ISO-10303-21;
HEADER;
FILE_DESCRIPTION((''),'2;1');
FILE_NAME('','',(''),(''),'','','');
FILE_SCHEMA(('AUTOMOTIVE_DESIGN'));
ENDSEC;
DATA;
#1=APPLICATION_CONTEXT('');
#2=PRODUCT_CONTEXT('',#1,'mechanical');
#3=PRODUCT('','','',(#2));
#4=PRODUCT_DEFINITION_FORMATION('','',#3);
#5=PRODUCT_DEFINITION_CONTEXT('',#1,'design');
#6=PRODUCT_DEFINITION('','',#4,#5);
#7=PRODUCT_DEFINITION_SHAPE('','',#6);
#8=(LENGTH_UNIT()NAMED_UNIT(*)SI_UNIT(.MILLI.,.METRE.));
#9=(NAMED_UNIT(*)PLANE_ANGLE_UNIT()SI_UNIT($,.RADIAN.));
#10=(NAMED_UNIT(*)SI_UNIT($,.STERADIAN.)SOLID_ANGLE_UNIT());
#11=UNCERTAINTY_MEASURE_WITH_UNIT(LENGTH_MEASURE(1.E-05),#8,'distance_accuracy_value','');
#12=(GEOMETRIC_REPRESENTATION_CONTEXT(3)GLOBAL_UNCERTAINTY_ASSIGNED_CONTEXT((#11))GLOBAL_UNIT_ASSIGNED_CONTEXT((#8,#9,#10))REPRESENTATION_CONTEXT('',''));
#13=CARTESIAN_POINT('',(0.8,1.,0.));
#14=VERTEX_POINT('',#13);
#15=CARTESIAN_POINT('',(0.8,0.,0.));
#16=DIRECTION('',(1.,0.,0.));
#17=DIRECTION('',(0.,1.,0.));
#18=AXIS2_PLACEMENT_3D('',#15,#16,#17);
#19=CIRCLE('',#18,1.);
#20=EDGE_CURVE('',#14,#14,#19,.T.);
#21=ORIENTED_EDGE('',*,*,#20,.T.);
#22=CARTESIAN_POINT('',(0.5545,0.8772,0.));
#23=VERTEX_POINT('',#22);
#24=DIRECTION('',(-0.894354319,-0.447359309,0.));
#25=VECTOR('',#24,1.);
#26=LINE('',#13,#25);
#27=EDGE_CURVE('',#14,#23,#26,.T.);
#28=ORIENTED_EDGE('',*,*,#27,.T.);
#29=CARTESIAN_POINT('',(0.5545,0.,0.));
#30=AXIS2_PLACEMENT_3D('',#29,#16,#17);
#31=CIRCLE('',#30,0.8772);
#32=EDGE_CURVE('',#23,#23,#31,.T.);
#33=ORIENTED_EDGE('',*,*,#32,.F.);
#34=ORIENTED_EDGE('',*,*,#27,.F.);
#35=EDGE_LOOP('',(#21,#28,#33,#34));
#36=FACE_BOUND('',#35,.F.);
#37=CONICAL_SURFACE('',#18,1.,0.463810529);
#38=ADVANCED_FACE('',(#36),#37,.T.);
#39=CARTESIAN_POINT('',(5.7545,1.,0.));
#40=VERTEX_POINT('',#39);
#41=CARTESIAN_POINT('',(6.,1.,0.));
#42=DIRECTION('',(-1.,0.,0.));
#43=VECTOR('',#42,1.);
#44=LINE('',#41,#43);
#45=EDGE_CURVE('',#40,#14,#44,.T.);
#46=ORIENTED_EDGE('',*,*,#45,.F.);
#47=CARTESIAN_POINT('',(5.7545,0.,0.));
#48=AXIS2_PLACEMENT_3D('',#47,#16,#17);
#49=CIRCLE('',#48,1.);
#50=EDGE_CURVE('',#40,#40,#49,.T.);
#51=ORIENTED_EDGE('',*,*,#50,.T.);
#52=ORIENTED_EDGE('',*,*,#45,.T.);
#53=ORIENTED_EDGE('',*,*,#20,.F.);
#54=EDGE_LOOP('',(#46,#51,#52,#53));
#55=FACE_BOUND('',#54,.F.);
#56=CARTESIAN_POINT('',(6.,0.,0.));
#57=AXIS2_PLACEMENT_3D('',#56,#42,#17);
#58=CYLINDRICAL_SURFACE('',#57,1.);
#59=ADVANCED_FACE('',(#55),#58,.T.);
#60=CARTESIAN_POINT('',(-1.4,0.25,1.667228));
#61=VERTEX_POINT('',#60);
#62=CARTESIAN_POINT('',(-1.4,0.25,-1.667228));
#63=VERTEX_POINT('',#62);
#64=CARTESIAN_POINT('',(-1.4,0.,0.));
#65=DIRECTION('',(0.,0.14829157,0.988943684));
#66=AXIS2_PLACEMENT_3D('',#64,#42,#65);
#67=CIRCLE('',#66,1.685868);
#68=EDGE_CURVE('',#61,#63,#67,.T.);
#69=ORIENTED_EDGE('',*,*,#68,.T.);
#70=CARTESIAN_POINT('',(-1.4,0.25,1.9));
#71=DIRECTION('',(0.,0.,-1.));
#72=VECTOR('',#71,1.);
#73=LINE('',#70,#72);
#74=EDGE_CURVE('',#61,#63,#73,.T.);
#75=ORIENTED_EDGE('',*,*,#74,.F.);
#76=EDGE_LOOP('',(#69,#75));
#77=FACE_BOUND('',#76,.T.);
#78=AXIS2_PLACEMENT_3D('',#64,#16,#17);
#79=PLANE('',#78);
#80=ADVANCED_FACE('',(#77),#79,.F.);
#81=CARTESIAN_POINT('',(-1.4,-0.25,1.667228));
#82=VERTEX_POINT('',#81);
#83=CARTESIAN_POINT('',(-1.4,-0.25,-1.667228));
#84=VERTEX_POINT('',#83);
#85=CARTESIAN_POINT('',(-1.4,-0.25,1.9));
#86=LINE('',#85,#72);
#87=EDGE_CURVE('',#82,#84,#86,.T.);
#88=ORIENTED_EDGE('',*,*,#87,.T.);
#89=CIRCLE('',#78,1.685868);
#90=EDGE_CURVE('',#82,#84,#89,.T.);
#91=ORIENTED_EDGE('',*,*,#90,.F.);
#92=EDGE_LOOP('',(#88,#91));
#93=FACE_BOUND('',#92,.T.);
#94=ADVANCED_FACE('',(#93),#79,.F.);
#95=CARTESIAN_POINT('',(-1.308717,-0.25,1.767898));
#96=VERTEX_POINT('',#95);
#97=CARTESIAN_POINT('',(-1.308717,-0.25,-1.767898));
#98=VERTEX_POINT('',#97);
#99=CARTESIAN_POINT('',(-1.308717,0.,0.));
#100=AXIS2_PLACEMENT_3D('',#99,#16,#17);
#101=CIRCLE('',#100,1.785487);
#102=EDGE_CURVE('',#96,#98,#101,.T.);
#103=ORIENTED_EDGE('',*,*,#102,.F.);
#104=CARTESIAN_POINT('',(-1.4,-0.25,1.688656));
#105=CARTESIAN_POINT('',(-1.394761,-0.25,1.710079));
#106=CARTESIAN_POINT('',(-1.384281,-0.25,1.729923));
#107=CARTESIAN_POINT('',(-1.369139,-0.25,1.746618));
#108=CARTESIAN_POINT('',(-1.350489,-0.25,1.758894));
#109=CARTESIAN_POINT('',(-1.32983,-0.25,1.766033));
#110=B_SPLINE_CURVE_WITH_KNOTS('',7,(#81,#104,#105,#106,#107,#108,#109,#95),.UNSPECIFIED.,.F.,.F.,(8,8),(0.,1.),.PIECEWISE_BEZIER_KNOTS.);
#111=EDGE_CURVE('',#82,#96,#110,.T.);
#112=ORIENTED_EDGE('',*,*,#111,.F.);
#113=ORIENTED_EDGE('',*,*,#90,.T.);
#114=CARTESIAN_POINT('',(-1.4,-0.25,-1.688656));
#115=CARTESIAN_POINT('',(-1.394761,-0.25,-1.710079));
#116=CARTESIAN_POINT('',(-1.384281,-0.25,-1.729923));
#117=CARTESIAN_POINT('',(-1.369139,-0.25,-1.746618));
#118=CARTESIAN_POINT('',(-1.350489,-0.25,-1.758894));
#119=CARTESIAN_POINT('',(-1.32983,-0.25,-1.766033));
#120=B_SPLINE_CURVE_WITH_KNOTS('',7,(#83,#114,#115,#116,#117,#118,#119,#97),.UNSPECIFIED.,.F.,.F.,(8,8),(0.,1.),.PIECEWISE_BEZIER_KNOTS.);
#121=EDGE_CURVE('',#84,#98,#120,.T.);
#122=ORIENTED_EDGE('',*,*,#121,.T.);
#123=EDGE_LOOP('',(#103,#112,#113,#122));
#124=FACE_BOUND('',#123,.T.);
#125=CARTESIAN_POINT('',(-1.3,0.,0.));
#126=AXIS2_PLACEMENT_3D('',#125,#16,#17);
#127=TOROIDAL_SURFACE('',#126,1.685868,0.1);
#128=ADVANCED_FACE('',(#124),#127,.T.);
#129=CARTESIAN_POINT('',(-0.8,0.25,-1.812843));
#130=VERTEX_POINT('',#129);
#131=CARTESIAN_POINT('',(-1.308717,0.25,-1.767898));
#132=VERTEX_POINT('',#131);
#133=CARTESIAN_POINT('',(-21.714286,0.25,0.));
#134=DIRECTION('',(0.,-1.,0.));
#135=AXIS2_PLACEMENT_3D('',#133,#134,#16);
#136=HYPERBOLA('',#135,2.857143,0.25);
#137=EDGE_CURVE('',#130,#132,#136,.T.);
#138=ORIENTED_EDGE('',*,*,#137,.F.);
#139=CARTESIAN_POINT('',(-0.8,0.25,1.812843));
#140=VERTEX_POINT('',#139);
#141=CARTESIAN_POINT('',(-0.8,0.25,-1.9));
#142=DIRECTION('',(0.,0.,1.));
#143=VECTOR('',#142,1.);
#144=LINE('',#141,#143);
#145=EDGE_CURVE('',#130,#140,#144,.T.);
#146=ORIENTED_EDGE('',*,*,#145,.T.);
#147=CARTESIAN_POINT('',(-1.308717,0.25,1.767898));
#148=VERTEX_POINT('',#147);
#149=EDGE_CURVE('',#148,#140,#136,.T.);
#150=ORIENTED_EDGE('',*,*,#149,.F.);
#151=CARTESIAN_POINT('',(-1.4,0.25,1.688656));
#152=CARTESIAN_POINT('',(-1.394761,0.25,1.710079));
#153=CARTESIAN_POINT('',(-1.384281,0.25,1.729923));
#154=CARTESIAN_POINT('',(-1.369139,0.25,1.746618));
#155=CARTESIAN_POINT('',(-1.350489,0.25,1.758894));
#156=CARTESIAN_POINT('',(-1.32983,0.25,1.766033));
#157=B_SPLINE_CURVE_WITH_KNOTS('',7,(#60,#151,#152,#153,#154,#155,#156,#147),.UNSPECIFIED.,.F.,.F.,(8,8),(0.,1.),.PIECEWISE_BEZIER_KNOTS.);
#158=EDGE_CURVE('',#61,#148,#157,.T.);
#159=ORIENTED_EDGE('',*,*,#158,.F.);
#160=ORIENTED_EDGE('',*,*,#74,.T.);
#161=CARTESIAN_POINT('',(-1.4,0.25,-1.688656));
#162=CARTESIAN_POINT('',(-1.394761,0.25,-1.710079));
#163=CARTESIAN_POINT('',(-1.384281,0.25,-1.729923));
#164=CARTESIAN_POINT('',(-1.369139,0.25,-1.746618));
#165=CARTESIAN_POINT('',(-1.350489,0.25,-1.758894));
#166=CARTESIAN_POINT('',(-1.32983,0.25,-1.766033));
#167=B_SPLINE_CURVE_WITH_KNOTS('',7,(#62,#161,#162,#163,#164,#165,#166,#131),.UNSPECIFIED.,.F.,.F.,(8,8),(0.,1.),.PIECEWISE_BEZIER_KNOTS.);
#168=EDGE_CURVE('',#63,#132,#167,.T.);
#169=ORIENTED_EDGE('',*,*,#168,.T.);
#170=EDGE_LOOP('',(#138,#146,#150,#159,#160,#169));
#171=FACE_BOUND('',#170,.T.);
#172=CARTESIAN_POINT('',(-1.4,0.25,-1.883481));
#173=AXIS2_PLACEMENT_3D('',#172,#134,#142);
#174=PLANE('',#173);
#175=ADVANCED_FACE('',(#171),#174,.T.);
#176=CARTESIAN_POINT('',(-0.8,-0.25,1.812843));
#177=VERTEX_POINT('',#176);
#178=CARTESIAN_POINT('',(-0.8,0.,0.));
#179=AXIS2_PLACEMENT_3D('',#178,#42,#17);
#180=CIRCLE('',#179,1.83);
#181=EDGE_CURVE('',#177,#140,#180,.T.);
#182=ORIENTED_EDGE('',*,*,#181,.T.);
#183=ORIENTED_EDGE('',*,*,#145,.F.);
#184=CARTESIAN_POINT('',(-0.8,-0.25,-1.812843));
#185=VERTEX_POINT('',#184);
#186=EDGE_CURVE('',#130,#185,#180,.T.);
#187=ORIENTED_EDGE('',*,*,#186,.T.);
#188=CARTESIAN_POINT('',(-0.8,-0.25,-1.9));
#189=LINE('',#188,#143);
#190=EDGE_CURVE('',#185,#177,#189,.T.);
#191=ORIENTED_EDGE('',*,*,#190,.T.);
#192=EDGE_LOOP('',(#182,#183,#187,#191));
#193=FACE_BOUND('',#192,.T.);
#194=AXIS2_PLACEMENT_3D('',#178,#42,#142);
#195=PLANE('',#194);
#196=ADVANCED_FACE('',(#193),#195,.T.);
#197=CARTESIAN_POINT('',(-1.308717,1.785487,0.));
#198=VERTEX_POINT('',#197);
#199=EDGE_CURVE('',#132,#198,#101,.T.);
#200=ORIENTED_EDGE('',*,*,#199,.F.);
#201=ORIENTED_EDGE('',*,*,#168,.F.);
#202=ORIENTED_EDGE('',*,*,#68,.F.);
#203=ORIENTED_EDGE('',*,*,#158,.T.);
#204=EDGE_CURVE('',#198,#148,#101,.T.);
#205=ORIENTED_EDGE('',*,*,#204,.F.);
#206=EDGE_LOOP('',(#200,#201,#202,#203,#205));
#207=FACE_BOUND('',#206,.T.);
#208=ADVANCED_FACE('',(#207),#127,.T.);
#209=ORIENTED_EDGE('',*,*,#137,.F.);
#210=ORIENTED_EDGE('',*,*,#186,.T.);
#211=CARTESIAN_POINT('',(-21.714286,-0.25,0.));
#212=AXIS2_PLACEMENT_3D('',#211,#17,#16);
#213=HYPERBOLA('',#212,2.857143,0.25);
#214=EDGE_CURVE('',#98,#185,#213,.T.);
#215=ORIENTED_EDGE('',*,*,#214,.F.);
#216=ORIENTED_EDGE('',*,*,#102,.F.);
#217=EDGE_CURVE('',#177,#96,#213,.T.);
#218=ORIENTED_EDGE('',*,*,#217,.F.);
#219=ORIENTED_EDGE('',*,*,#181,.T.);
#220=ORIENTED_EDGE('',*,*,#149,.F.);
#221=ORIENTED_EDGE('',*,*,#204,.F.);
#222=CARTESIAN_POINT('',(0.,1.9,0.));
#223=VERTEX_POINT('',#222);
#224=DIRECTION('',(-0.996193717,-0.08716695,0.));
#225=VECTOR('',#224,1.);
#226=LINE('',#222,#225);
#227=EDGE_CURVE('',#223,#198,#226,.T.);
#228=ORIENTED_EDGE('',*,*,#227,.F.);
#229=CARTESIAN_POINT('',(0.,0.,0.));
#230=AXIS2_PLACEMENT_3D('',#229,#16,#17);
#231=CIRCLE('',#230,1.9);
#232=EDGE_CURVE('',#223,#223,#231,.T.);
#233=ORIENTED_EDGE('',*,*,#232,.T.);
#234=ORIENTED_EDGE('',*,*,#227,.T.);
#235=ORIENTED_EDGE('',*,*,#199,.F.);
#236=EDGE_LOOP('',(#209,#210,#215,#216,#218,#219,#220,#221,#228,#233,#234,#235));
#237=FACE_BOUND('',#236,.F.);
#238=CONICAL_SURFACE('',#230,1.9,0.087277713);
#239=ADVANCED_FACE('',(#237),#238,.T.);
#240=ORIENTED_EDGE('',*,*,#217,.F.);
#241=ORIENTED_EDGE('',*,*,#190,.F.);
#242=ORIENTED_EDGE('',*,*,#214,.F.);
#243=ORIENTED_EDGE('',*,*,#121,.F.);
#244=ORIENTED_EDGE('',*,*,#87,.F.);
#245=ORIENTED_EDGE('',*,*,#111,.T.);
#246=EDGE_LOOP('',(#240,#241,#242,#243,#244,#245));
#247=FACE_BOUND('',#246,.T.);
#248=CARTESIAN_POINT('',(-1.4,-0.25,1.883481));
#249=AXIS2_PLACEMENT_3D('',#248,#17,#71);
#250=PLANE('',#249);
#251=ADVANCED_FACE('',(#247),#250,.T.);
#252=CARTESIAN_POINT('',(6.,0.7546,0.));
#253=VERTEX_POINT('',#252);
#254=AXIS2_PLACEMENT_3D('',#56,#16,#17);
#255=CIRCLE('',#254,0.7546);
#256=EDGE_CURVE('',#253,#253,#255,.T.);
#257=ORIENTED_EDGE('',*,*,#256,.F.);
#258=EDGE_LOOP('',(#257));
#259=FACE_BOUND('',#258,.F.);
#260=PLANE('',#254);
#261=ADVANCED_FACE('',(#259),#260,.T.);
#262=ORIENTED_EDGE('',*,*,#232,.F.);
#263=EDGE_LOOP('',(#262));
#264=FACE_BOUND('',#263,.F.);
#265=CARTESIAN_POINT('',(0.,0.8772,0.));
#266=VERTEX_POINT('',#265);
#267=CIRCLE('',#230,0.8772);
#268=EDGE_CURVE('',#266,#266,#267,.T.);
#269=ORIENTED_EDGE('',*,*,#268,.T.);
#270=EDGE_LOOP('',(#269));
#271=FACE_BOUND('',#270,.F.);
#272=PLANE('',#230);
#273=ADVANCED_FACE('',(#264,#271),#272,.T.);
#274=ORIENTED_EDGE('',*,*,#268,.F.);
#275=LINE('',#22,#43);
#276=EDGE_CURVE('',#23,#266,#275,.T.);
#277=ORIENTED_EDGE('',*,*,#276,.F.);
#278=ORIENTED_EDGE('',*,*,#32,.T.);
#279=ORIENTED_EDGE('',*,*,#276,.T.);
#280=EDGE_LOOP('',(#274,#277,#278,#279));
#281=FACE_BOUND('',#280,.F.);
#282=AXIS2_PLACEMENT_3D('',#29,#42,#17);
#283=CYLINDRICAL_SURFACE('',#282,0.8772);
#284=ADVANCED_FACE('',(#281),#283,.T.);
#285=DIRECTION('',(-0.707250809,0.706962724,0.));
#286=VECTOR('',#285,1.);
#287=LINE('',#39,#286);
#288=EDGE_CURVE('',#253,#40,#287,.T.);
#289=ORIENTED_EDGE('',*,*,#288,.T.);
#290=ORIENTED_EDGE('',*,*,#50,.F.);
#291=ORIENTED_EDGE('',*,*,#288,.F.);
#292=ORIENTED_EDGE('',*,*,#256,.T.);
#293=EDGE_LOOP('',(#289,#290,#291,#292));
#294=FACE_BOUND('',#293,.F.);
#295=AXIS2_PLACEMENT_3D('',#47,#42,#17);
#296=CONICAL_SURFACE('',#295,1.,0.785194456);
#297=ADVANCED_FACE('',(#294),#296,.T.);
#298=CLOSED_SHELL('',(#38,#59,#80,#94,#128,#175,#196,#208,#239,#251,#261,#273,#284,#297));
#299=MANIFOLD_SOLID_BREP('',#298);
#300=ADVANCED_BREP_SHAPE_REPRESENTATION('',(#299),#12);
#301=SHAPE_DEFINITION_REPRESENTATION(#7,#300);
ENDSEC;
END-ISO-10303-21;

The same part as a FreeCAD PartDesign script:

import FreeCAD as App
import Part
import Sketcher
Q = App.Units.Quantity


def edges_at(feature, points):
    """Names of the edges that pass closest to the given points."""
    edges = feature.Shape.Edges
    near = lambda p: min(range(len(edges)), key=lambda i: edges[i].distToShape(Part.Vertex(*p))[0])
    return sorted({f"Edge{near(p) + 1}" for p in points})


def add_polygon(sketch, points):
    """Adds a closed chain of lines whose ends are joined by coincident constraints."""
    first, n = sketch.GeometryCount, len(points)
    for a, b in zip(points, points[1:] + points[:1]):
        sketch.addGeometry(Part.LineSegment(App.Vector(*a, 0), App.Vector(*b, 0)), False)
    for i in range(n):
        sketch.addConstraint(Sketcher.Constraint("Coincident", first + i, 2, first + (i + 1) % n, 1))

doc = App.newDocument("Part")
params = doc.addObject("Spreadsheet::Sheet", "Params")
for row, (alias, value) in enumerate([
    ("sketch1_width", "5.2 mm"),
    ("sketch1_height", "1 mm"),
    ("revolution_angle", "360 deg"),
    ("fillet_radius", "0.1 mm"),
    ("sketch2_width", "0.5 mm"),
    ("sketch2_height", "3.8 mm"),
    ("pocket1_length", "0.6 mm"),
    ("chamfer_size", "0.2454 mm"),
    ("chamfer_size2", "0.2455 mm"),
], start=1):
    params.set(f"A{row}", alias)
    params.set(f"B{row}", "=" + value)
    params.setAlias(f"B{row}", alias)

body = doc.addObject("PartDesign::Body", "Body")

# Sketch on XY plane
sketch1 = doc.addObject("Sketcher::SketchObject", "Sketch")
body.addObject(sketch1)
sketch1.AttachmentSupport = (doc.XY_Plane, [""])
sketch1.MapMode = "FlatFace"
add_polygon(sketch1, [(-1.4, 1.7775), (-1.4, 0), (6, 0), (6, 1), (0.8, 1), (0.5545, 0.8772), (0, 0.8772), (0, 1.9)])  # lines 0-7
sketch1.addConstraint([
    Sketcher.Constraint("Vertical", 0),
    Sketcher.Constraint("Horizontal", 1),
    Sketcher.Constraint("Vertical", 2),
    Sketcher.Constraint("Horizontal", 3),
    Sketcher.Constraint("Horizontal", 5),
    Sketcher.Constraint("Vertical", 6),
    Sketcher.Constraint("PointOnObject", 0, 2, -1),
    Sketcher.Constraint("PointOnObject", 5, 2, -2),
    Sketcher.Constraint("DistanceX", 3, 2, 3, 1, 5.2),
    Sketcher.Constraint("DistanceX", -1, 1, 1, 2, 6.0),
    Sketcher.Constraint("DistanceX", 0, 2, -1, 1, 1.4),
    Sketcher.Constraint("DistanceY", 2, 1, 2, 2, 1.0),
    Sketcher.Constraint("Angle", 7, Q("-174.9994 deg")),
    Sketcher.Constraint("DistanceY", -1, 1, 6, 2, 1.9),
    Sketcher.Constraint("DistanceX", 4, 2, 3, 2, 0.2455),
    Sketcher.Constraint("DistanceY", 6, 1, 6, 2, 1.0228),
])
sketch1.setExpression("Constraints[16]", "Params.sketch1_width")
sketch1.setExpression("Constraints[19]", "Params.sketch1_height")
revolution = doc.addObject("PartDesign::Revolution", "Revolution")
body.addObject(revolution)
revolution.Profile = sketch1
revolution.ReferenceAxis = (sketch1, ["H_Axis"])
revolution.setExpression("Angle", "Params.revolution_angle")
doc.recompute()

fillet = doc.addObject("PartDesign::Fillet", "Fillet")
body.addObject(fillet)
fillet.Base = (revolution, edges_at(revolution, [(-1.4, -1.778, 0)]))
fillet.setExpression("Radius", "Params.fillet_radius")

# Sketch on YZ plane
sketch2 = doc.addObject("Sketcher::SketchObject", "Sketch001")
body.addObject(sketch2)
sketch2.AttachmentSupport = (doc.YZ_Plane, [""])
sketch2.MapMode = "FlatFace"
sketch2.AttachmentOffset = App.Placement(App.Vector(0, 0, -1.4), App.Rotation())
add_polygon(sketch2, [(-0.25, 1.9), (0.25, 1.9), (0.25, -1.9), (-0.25, -1.9)])  # lines 0-3
sketch2.addConstraint([
    Sketcher.Constraint("Horizontal", 0),
    Sketcher.Constraint("Vertical", 1),
    Sketcher.Constraint("Horizontal", 2),
    Sketcher.Constraint("Vertical", 3),
    Sketcher.Constraint("Symmetric", 0, 2, 2, 2, -1, 1),
    Sketcher.Constraint("DistanceX", 0, 1, 0, 2, 0.5),
    Sketcher.Constraint("DistanceY", 1, 2, 1, 1, 3.8),
])
sketch2.setExpression("Constraints[9]", "Params.sketch2_width")
sketch2.setExpression("Constraints[10]", "Params.sketch2_height")
pocket1 = doc.addObject("PartDesign::Pocket", "Pocket")
body.addObject(pocket1)
pocket1.Profile = sketch2
pocket1.setExpression("Length", "Params.pocket1_length")
pocket1.Reversed = True
doc.recompute()

chamfer = doc.addObject("PartDesign::Chamfer", "Chamfer")
body.addObject(chamfer)
chamfer.Base = (pocket1, edges_at(pocket1, [(6, -1, 0)]))
chamfer.ChamferType = "Two distances"
chamfer.setExpression("Size", "Params.chamfer_size")
chamfer.setExpression("Size2", "Params.chamfer_size2")

doc.recompute()
